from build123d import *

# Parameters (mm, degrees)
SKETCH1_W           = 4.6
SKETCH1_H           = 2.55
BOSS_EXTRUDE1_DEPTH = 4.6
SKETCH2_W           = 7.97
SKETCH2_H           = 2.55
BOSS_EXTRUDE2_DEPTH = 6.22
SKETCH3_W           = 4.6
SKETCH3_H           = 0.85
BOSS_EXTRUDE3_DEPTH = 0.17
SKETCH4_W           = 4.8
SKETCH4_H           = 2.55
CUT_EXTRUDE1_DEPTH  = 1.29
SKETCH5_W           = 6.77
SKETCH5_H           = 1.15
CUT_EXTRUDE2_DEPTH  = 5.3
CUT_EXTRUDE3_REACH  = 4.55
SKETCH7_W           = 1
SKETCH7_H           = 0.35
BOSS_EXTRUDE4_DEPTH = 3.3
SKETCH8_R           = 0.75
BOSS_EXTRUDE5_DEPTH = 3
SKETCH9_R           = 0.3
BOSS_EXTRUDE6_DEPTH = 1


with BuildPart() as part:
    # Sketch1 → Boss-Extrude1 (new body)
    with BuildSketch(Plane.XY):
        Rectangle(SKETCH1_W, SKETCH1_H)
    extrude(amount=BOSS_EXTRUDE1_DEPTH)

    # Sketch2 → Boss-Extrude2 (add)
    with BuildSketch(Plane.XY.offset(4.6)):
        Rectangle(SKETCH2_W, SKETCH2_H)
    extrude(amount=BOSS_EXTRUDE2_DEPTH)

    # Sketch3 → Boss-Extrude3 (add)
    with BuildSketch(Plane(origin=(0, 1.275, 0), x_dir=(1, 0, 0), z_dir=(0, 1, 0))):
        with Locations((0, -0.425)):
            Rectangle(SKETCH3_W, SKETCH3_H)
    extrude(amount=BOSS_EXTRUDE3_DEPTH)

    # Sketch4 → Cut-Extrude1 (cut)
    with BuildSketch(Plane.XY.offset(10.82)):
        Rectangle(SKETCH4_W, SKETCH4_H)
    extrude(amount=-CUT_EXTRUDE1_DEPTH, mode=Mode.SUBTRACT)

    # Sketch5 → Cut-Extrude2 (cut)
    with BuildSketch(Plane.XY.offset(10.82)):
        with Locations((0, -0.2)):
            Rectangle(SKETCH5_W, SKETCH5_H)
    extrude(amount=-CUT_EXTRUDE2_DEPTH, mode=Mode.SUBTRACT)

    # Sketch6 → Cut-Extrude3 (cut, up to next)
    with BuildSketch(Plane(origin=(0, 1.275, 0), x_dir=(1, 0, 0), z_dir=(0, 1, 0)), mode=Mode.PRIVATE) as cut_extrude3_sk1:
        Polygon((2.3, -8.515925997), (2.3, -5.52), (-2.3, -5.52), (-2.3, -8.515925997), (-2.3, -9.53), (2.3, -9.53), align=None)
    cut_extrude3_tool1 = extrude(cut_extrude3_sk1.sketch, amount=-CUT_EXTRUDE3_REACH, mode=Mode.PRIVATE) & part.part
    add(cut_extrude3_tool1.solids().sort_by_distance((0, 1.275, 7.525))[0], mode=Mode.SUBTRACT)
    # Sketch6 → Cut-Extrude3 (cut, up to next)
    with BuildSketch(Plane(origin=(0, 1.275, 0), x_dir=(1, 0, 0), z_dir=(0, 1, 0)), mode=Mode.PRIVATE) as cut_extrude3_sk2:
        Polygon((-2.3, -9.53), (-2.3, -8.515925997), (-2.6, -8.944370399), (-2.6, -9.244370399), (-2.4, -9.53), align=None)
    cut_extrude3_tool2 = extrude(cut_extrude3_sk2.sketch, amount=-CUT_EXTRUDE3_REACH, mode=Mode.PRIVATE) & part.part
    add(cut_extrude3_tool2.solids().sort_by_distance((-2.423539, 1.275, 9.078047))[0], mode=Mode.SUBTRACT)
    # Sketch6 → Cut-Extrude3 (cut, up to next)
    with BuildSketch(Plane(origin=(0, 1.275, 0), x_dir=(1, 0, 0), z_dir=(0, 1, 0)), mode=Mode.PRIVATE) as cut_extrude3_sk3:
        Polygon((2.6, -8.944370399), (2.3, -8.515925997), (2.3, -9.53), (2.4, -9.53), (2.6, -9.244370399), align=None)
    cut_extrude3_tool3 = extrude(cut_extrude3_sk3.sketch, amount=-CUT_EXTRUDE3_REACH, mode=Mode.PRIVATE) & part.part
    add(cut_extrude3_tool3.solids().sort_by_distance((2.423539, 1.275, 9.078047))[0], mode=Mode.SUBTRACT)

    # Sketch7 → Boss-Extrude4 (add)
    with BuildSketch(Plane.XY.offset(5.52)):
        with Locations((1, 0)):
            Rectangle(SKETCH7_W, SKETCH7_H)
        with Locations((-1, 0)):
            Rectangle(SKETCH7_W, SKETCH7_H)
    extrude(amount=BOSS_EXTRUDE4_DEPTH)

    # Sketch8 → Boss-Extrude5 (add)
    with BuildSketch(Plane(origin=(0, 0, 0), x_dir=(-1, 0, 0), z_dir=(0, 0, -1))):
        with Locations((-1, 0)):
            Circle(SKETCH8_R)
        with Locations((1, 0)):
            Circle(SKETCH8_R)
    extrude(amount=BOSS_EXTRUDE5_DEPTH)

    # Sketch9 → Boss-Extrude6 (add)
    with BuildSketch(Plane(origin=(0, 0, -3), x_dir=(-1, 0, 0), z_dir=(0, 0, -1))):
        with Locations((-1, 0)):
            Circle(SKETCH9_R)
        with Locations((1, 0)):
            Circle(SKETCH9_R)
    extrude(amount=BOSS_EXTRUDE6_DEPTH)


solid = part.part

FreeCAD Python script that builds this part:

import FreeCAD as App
import Part
import Sketcher
Q = App.Units.Quantity

doc = App.newDocument("Part")
body = doc.addObject("PartDesign::Body", "Body")

sketch1 = body.newObject("Sketcher::SketchObject", "Sketch")
sketch1.AttachmentSupport = (doc.getObject("XY_Plane"), [""])
sketch1.MapMode = "FlatFace"
sketch1.addGeometry([
    Part.LineSegment(App.Vector(-2.3, 1.3, 0), App.Vector(-2.3, -1.3, 0)),
    Part.LineSegment(App.Vector(-2.3, -1.3, 0), App.Vector(2.3, -1.3, 0)),
    Part.LineSegment(App.Vector(2.3, -1.3, 0), App.Vector(2.3, 1.3, 0)),
    Part.LineSegment(App.Vector(2.3, 1.3, 0), App.Vector(-2.3, 1.3, 0)),
], False)
sketch1.addConstraint([
    Sketcher.Constraint("Coincident", 0, 2, 1, 1),
    Sketcher.Constraint("Coincident", 1, 2, 2, 1),
    Sketcher.Constraint("Coincident", 2, 2, 3, 1),
    Sketcher.Constraint("Coincident", 3, 2, 0, 1),
    Sketcher.Constraint("Vertical", 0),
    Sketcher.Constraint("Horizontal", 1),
    Sketcher.Constraint("Vertical", 2),
    Sketcher.Constraint("Horizontal", 3),
    Sketcher.Constraint("Symmetric", 0, 2, 2, 2, -1, 1),
    Sketcher.Constraint("DistanceX", 1, 1, 1, 2, 4.6),
    Sketcher.Constraint("DistanceY", 0, 2, 0, 1, 2.55),
])
pad1 = body.newObject("PartDesign::Pad", "Pad")
pad1.Profile = sketch1
pad1.Length = 4.6

sketch2 = body.newObject("Sketcher::SketchObject", "Sketch001")
sketch2.AttachmentSupport = (doc.getObject("XY_Plane"), [""])
sketch2.MapMode = "FlatFace"
sketch2.AttachmentOffset = App.Placement(App.Vector(0, 0, 4.6), App.Rotation())
sketch2.addGeometry([
    Part.LineSegment(App.Vector(-4, 1.3, 0), App.Vector(-4, -1.3, 0)),
    Part.LineSegment(App.Vector(-4, -1.3, 0), App.Vector(4, -1.3, 0)),
    Part.LineSegment(App.Vector(4, -1.3, 0), App.Vector(4, 1.3, 0)),
    Part.LineSegment(App.Vector(4, 1.3, 0), App.Vector(-4, 1.3, 0)),
], False)
sketch2.addConstraint([
    Sketcher.Constraint("Coincident", 0, 2, 1, 1),
    Sketcher.Constraint("Coincident", 1, 2, 2, 1),
    Sketcher.Constraint("Coincident", 2, 2, 3, 1),
    Sketcher.Constraint("Coincident", 3, 2, 0, 1),
    Sketcher.Constraint("Vertical", 0),
    Sketcher.Constraint("Horizontal", 1),
    Sketcher.Constraint("Vertical", 2),
    Sketcher.Constraint("Horizontal", 3),
    Sketcher.Constraint("Symmetric", 0, 2, 2, 2, -1, 1),
    Sketcher.Constraint("DistanceX", 1, 1, 1, 2, 7.97),
    Sketcher.Constraint("DistanceY", 0, 2, 0, 1, 2.55),
])
pad2 = body.newObject("PartDesign::Pad", "Pad001")
pad2.Profile = sketch2
pad2.Length = 6.22

sketch3 = body.newObject("Sketcher::SketchObject", "Sketch002")
sketch3.AttachmentSupport = (doc.getObject("XZ_Plane"), [""])
sketch3.MapMode = "FlatFace"
sketch3.AttachmentOffset = App.Placement(App.Vector(0, 0, -1.275), App.Rotation())
sketch3.addGeometry([
    Part.LineSegment(App.Vector(-2.3, 0, 0), App.Vector(-2.3, 0.8, 0)),
    Part.LineSegment(App.Vector(-2.3, 0.8, 0), App.Vector(2.3, 0.8, 0)),
    Part.LineSegment(App.Vector(2.3, 0.8, 0), App.Vector(2.3, 0, 0)),
    Part.LineSegment(App.Vector(2.3, 0, 0), App.Vector(-2.3, 0, 0)),
], False)
sketch3.addConstraint([
    Sketcher.Constraint("Coincident", 0, 2, 1, 1),
    Sketcher.Constraint("Coincident", 1, 2, 2, 1),
    Sketcher.Constraint("Coincident", 2, 2, 3, 1),
    Sketcher.Constraint("Coincident", 3, 2, 0, 1),
    Sketcher.Constraint("Vertical", 0),
    Sketcher.Constraint("Horizontal", 1),
    Sketcher.Constraint("Vertical", 2),
    Sketcher.Constraint("Horizontal", 3),
    Sketcher.Constraint("Symmetric", 2, 2, 3, 2, -1, 1),
    Sketcher.Constraint("DistanceX", 1, 1, 1, 2, 4.6),
    Sketcher.Constraint("DistanceY", 0, 1, 0, 2, 0.85),
])
pad3 = body.newObject("PartDesign::Pad", "Pad002")
pad3.Profile = sketch3
pad3.Length = 0.17
pad3.Reversed = True

sketch4 = body.newObject("Sketcher::SketchObject", "Sketch003")
sketch4.AttachmentSupport = (doc.getObject("XY_Plane"), [""])
sketch4.MapMode = "FlatFace"
sketch4.AttachmentOffset = App.Placement(App.Vector(0, 0, 10.82), App.Rotation())
sketch4.addGeometry([
    Part.LineSegment(App.Vector(-2.4, 1.3, 0), App.Vector(-2.4, -1.3, 0)),
    Part.LineSegment(App.Vector(-2.4, -1.3, 0), App.Vector(2.4, -1.3, 0)),
    Part.LineSegment(App.Vector(2.4, -1.3, 0), App.Vector(2.4, 1.3, 0)),
    Part.LineSegment(App.Vector(2.4, 1.3, 0), App.Vector(-2.4, 1.3, 0)),
], False)
sketch4.addConstraint([
    Sketcher.Constraint("Coincident", 0, 2, 1, 1),
    Sketcher.Constraint("Coincident", 1, 2, 2, 1),
    Sketcher.Constraint("Coincident", 2, 2, 3, 1),
    Sketcher.Constraint("Coincident", 3, 2, 0, 1),
    Sketcher.Constraint("Vertical", 0),
    Sketcher.Constraint("Horizontal", 1),
    Sketcher.Constraint("Vertical", 2),
    Sketcher.Constraint("Horizontal", 3),
    Sketcher.Constraint("Symmetric", 0, 2, 2, 2, -1, 1),
    Sketcher.Constraint("DistanceX", 1, 1, 1, 2, 4.8),
    Sketcher.Constraint("DistanceY", 0, 2, 0, 1, 2.55),
])
pocket1 = body.newObject("PartDesign::Pocket", "Pocket")
pocket1.Profile = sketch4
pocket1.Length = 1.29

sketch5 = body.newObject("Sketcher::SketchObject", "Sketch004")
sketch5.AttachmentSupport = (doc.getObject("XY_Plane"), [""])
sketch5.MapMode = "FlatFace"
sketch5.AttachmentOffset = App.Placement(App.Vector(0, 0, 10.82), App.Rotation())
sketch5.addGeometry([
    Part.LineSegment(App.Vector(-3.4, 0.4, 0), App.Vector(-3.4, -0.8, 0)),
    Part.LineSegment(App.Vector(-3.4, -0.8, 0), App.Vector(3.4, -0.8, 0)),
    Part.LineSegment(App.Vector(3.4, -0.8, 0), App.Vector(3.4, 0.4, 0)),
    Part.LineSegment(App.Vector(3.4, 0.4, 0), App.Vector(-3.4, 0.4, 0)),
], False)
sketch5.addConstraint([
    Sketcher.Constraint("Coincident", 0, 2, 1, 1),
    Sketcher.Constraint("Coincident", 1, 2, 2, 1),
    Sketcher.Constraint("Coincident", 2, 2, 3, 1),
    Sketcher.Constraint("Coincident", 3, 2, 0, 1),
    Sketcher.Constraint("Vertical", 0),
    Sketcher.Constraint("Horizontal", 1),
    Sketcher.Constraint("Vertical", 2),
    Sketcher.Constraint("Horizontal", 3),
    Sketcher.Constraint("DistanceX", 1, 1, 1, 2, 6.77),
    Sketcher.Constraint("DistanceY", 0, 2, 0, 1, 1.15),
    Sketcher.Constraint("DistanceX", 0, 2, -1, 1, 3.385),
    Sketcher.Constraint("DistanceY", 0, 2, -1, 1, 0.775),
])
pocket2 = body.newObject("PartDesign::Pocket", "Pocket001")
pocket2.Profile = sketch5
pocket2.Length = 5.3

sketch6 = body.newObject("Sketcher::SketchObject", "Sketch005")
sketch6.AttachmentSupport = (doc.getObject("XZ_Plane"), [""])
sketch6.MapMode = "FlatFace"
sketch6.AttachmentOffset = App.Placement(App.Vector(0, 0, -1.275), App.Rotation())
sketch6.addGeometry([
    Part.LineSegment(App.Vector(2.3, 5.5, 0), App.Vector(-2.3, 5.5, 0)),
    Part.LineSegment(App.Vector(-2.3, 5.5, 0), App.Vector(-2.3, 9.5, 0)),
    Part.LineSegment(App.Vector(-2.3, 9.5, 0), App.Vector(2.3, 9.5, 0)),
    Part.LineSegment(App.Vector(2.3, 9.5, 0), App.Vector(2.3, 5.5, 0)),
], False)
sketch6.addConstraint([
    Sketcher.Constraint("Coincident", 0, 2, 1, 1),
    Sketcher.Constraint("Coincident", 1, 2, 2, 1),
    Sketcher.Constraint("Coincident", 2, 2, 3, 1),
    Sketcher.Constraint("Coincident", 3, 2, 0, 1),
    Sketcher.Constraint("Horizontal", 0),
    Sketcher.Constraint("Vertical", 1),
    Sketcher.Constraint("Horizontal", 2),
    Sketcher.Constraint("Vertical", 3),
    Sketcher.Constraint("DistanceX", 0, 2, 0, 1, 4.6),
    Sketcher.Constraint("DistanceY", 1, 1, 1, 2, 4.01),
    Sketcher.Constraint("DistanceX", 0, 2, -1, 1, 2.3),
    Sketcher.Constraint("DistanceY", -1, 1, 0, 2, 5.52),
])
pocket3 = body.newObject("PartDesign::Pocket", "Pocket002")
pocket3.Profile = sketch6
pocket3.Type = "UpToFirst"
pocket3.Reversed = True

sketch7 = body.newObject("Sketcher::SketchObject", "Sketch006")
sketch7.AttachmentSupport = (doc.getObject("XZ_Plane"), [""])
sketch7.MapMode = "FlatFace"
sketch7.AttachmentOffset = App.Placement(App.Vector(0, 0, -1.275), App.Rotation())
sketch7.addGeometry([
    Part.LineSegment(App.Vector(-2.3, 9.53, 0), App.Vector(-2.3, 8.52, 0)),
    Part.LineSegment(App.Vector(-2.3, 8.52, 0), App.Vector(-2.6, 8.94, 0)),
    Part.LineSegment(App.Vector(-2.6, 8.94, 0), App.Vector(-2.6, 9.24, 0)),
    Part.LineSegment(App.Vector(-2.6, 9.24, 0), App.Vector(-2.4, 9.53, 0)),
    Part.LineSegment(App.Vector(-2.4, 9.53, 0), App.Vector(-2.3, 9.53, 0)),
], False)
sketch7.addConstraint([
    Sketcher.Constraint("Coincident", 0, 2, 1, 1),
    Sketcher.Constraint("Coincident", 1, 2, 2, 1),
    Sketcher.Constraint("Coincident", 2, 2, 3, 1),
    Sketcher.Constraint("Coincident", 3, 2, 4, 1),
    Sketcher.Constraint("Coincident", 4, 2, 0, 1),
    Sketcher.Constraint("Vertical", 0),
    Sketcher.Constraint("Vertical", 2),
    Sketcher.Constraint("Horizontal", 4),
    Sketcher.Constraint("Angle", 1, Q("125 deg")),
    Sketcher.Constraint("Angle", 3, Q("55 deg")),
    Sketcher.Constraint("DistanceX", 4, 1, 4, 2, 0.1),
    Sketcher.Constraint("DistanceY", 2, 1, 2, 2, 0.3),
    Sketcher.Constraint("DistanceX", 0, 2, -1, 1, 2.3),
    Sketcher.Constraint("DistanceX", 1, 2, -1, 1, 2.6),
    Sketcher.Constraint("DistanceY", -1, 1, 3, 2, 9.53),
])
pocket4 = body.newObject("PartDesign::Pocket", "Pocket003")
pocket4.Profile = sketch7
pocket4.Type = "UpToFirst"
pocket4.Reversed = True

sketch8 = body.newObject("Sketcher::SketchObject", "Sketch007")
sketch8.AttachmentSupport = (doc.getObject("XZ_Plane"), [""])
sketch8.MapMode = "FlatFace"
sketch8.AttachmentOffset = App.Placement(App.Vector(0, 0, -1.275), App.Rotation())
sketch8.addGeometry([
    Part.LineSegment(App.Vector(2.6, 8.94, 0), App.Vector(2.3, 8.52, 0)),
    Part.LineSegment(App.Vector(2.3, 8.52, 0), App.Vector(2.3, 9.53, 0)),
    Part.LineSegment(App.Vector(2.3, 9.53, 0), App.Vector(2.4, 9.53, 0)),
    Part.LineSegment(App.Vector(2.4, 9.53, 0), App.Vector(2.6, 9.24, 0)),
    Part.LineSegment(App.Vector(2.6, 9.24, 0), App.Vector(2.6, 8.94, 0)),
], False)
sketch8.addConstraint([
    Sketcher.Constraint("Coincident", 0, 2, 1, 1),
    Sketcher.Constraint("Coincident", 1, 2, 2, 1),
    Sketcher.Constraint("Coincident", 2, 2, 3, 1),
    Sketcher.Constraint("Coincident", 3, 2, 4, 1),
    Sketcher.Constraint("Coincident", 4, 2, 0, 1),
    Sketcher.Constraint("Vertical", 1),
    Sketcher.Constraint("Horizontal", 2),
    Sketcher.Constraint("Vertical", 4),
    Sketcher.Constraint("Angle", 0, Q("-125 deg")),
    Sketcher.Constraint("Angle", 3, Q("-55 deg")),
    Sketcher.Constraint("DistanceX", 2, 1, 2, 2, 0.1),
    Sketcher.Constraint("DistanceY", 4, 2, 4, 1, 0.3),
    Sketcher.Constraint("DistanceX", -1, 1, 0, 2, 2.3),
    Sketcher.Constraint("DistanceX", -1, 1, 3, 2, 2.6),
    Sketcher.Constraint("DistanceY", -1, 1, 1, 2, 9.53),
])
pocket5 = body.newObject("PartDesign::Pocket", "Pocket004")
pocket5.Profile = sketch8
pocket5.Type = "UpToFirst"
pocket5.Reversed = True

sketch9 = body.newObject("Sketcher::SketchObject", "Sketch008")
sketch9.AttachmentSupport = (doc.getObject("XY_Plane"), [""])
sketch9.MapMode = "FlatFace"
sketch9.AttachmentOffset = App.Placement(App.Vector(0, 0, 5.52), App.Rotation())
sketch9.addGeometry([
    Part.LineSegment(App.Vector(0.5, 0.17, 0), App.Vector(0.5, -0.17, 0)),
    Part.LineSegment(App.Vector(0.5, -0.17, 0), App.Vector(1.5, -0.17, 0)),
    Part.LineSegment(App.Vector(1.5, -0.17, 0), App.Vector(1.5, 0.17, 0)),
    Part.LineSegment(App.Vector(1.5, 0.17, 0), App.Vector(0.5, 0.17, 0)),
    Part.LineSegment(App.Vector(-1.5, 0.17, 0), App.Vector(-1.5, -0.17, 0)),
    Part.LineSegment(App.Vector(-1.5, -0.17, 0), App.Vector(-0.5, -0.17, 0)),
    Part.LineSegment(App.Vector(-0.5, -0.17, 0), App.Vector(-0.5, 0.17, 0)),
    Part.LineSegment(App.Vector(-0.5, 0.17, 0), App.Vector(-1.5, 0.17, 0)),
], False)
sketch9.addConstraint([
    Sketcher.Constraint("Coincident", 0, 2, 1, 1),
    Sketcher.Constraint("Coincident", 1, 2, 2, 1),
    Sketcher.Constraint("Coincident", 2, 2, 3, 1),
    Sketcher.Constraint("Coincident", 3, 2, 0, 1),
    Sketcher.Constraint("Coincident", 4, 2, 5, 1),
    Sketcher.Constraint("Coincident", 5, 2, 6, 1),
    Sketcher.Constraint("Coincident", 6, 2, 7, 1),
    Sketcher.Constraint("Coincident", 7, 2, 4, 1),
    Sketcher.Constraint("Vertical", 0),
    Sketcher.Constraint("Horizontal", 1),
    Sketcher.Constraint("Vertical", 2),
    Sketcher.Constraint("Horizontal", 3),
    Sketcher.Constraint("Vertical", 4),
    Sketcher.Constraint("Horizontal", 5),
    Sketcher.Constraint("Vertical", 6),
    Sketcher.Constraint("Horizontal", 7),
    Sketcher.Constraint("Symmetric", 2, 2, 4, 2, -1, 1),
    Sketcher.Constraint("Symmetric", 0, 2, 6, 2, -1, 1),
    Sketcher.Constraint("Horizontal", 1, 2, 4, 2),
    Sketcher.Constraint("DistanceX", 1, 1, 1, 2, 1.0),
    Sketcher.Constraint("DistanceX", 4, 2, 0, 2, 2.0),
    Sketcher.Constraint("DistanceY", 0, 2, 0, 1, 0.35),
])
pad4 = body.newObject("PartDesign::Pad", "Pad003")
pad4.Profile = sketch9
pad4.Length = 3.3

sketch10 = body.newObject("Sketcher::SketchObject", "Sketch009")
sketch10.AttachmentSupport = (doc.getObject("XY_Plane"), [""])
sketch10.MapMode = "FlatFace"
sketch10.addGeometry([
    Part.Circle(App.Vector(1, 0, 0), App.Vector(0, 0, 1), 0.8),
    Part.Circle(App.Vector(-1, 0, 0), App.Vector(0, 0, 1), 0.8),
], False)
sketch10.addConstraint([
    Sketcher.Constraint("Equal", 0, 1),
    Sketcher.Constraint("Symmetric", 0, 3, 1, 3, -1, 1),
    Sketcher.Constraint("PointOnObject", 0, 3, -1),
    Sketcher.Constraint("Diameter", 0, 1.5),
    Sketcher.Constraint("DistanceX", -1, 1, 0, 3, 1.0),
])
pad5 = body.newObject("PartDesign::Pad", "Pad004")
pad5.Profile = sketch10
pad5.Length = 3
pad5.Reversed = True

sketch11 = body.newObject("Sketcher::SketchObject", "Sketch010")
sketch11.AttachmentSupport = (doc.getObject("XY_Plane"), [""])
sketch11.MapMode = "FlatFace"
sketch11.AttachmentOffset = App.Placement(App.Vector(0, 0, -3), App.Rotation())
sketch11.addGeometry([
    Part.Circle(App.Vector(1, 0, 0), App.Vector(0, 0, 1), 0.3),
    Part.Circle(App.Vector(-1, 0, 0), App.Vector(0, 0, 1), 0.3),
], False)
sketch11.addConstraint([
    Sketcher.Constraint("Equal", 0, 1),
    Sketcher.Constraint("Symmetric", 0, 3, 1, 3, -1, 1),
    Sketcher.Constraint("PointOnObject", 0, 3, -1),
    Sketcher.Constraint("Diameter", 0, 0.6),
    Sketcher.Constraint("DistanceX", -1, 1, 0, 3, 1.0),
])
pad6 = body.newObject("PartDesign::Pad", "Pad005")
pad6.Profile = sketch11
pad6.Length = 1
pad6.Reversed = True

doc.recompute()
